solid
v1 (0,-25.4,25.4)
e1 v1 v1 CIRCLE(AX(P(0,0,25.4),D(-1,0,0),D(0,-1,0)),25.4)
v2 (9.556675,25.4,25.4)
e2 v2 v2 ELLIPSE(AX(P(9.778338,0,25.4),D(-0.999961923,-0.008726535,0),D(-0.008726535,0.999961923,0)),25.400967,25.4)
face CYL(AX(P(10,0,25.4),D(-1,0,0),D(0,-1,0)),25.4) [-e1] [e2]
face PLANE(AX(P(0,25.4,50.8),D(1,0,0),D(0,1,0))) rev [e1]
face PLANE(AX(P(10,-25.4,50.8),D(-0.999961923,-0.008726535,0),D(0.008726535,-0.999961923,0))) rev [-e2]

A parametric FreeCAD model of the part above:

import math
import FreeCAD as App
import Part
import Sketcher

V = App.Vector
Q = App.Units.Quantity

doc = App.newDocument("Part")
body = doc.addObject("PartDesign::Body", "Body")

# Sketch on XY plane
sketch1 = body.newObject("Sketcher::SketchObject", "Sketch")
sketch1.AttachmentSupport = (doc.getObject("XY_Plane"), [""])
sketch1.MapMode = "FlatFace"
sketch1.addGeometry(Part.LineSegment(V(0, 25, 0), V(0, -25, 0)), False)
sketch1.addGeometry(Part.LineSegment(V(0, -25, 0), V(10, -25, 0)), False)
sketch1.addGeometry(Part.LineSegment(V(10, -25, 0), V(10, 25, 0)), False)
sketch1.addGeometry(Part.LineSegment(V(10, 25, 0), V(0, 25, 0)), False)
sketch1.addConstraint(Sketcher.Constraint("Coincident", 0, 2, 1, 1))
sketch1.addConstraint(Sketcher.Constraint("Coincident", 1, 2, 2, 1))
sketch1.addConstraint(Sketcher.Constraint("Coincident", 2, 2, 3, 1))
sketch1.addConstraint(Sketcher.Constraint("Coincident", 3, 2, 0, 1))
sketch1.addConstraint(Sketcher.Constraint("Vertical", 0))
sketch1.addConstraint(Sketcher.Constraint("Horizontal", 1))
sketch1.addConstraint(Sketcher.Constraint("Horizontal", 3))
sketch1.addConstraint(Sketcher.Constraint("Symmetric", 0, 2, 3, 2, -1, 1))
sketch1.addConstraint(Sketcher.Constraint("DistanceY", 0, 2, 0, 1, Q("2 in")))
sketch1.addConstraint(Sketcher.Constraint("Angle", 2, Q("90.5 deg")))
sketch1.addConstraint(Sketcher.Constraint("DistanceX", 1, 1, 1, 2, Q("10 mm")))
pad1 = body.newObject("PartDesign::Pad", "Pad")
pad1.Profile = sketch1
pad1.Length = Q("2 in")

# Sketch on YZ plane
sketch2 = body.newObject("Sketcher::SketchObject", "Sketch001")
sketch2.AttachmentSupport = (doc.getObject("YZ_Plane"), [""])
sketch2.MapMode = "FlatFace"
sketch2.addGeometry(Part.ArcOfCircle(Part.Circle(V(0, 25, 0), V(0, 0, 1), 25), math.radians(180), math.radians(270)), False)
sketch2.addGeometry(Part.LineSegment(V(0, 0, 0), V(-25, 0, 0)), False)
sketch2.addGeometry(Part.LineSegment(V(-25, 0, 0), V(-25, 25, 0)), False)
sketch2.addGeometry(Part.ArcOfCircle(Part.Circle(V(0, 25, 0), V(0, 0, 1), 25), math.radians(90), math.radians(180)), False)
sketch2.addGeometry(Part.LineSegment(V(-25, 25, 0), V(-25, 51, 0)), False)
sketch2.addGeometry(Part.LineSegment(V(-25, 51, 0), V(0, 51, 0)), False)
sketch2.addGeometry(Part.LineSegment(V(25, 51, 0), V(25, 25, 0)), False)
sketch2.addGeometry(Part.ArcOfCircle(Part.Circle(V(0, 25, 0), V(0, 0, 1), 25), math.radians(0), math.radians(90)), False)
sketch2.addGeometry(Part.LineSegment(V(0, 51, 0), V(25, 51, 0)), False)
sketch2.addGeometry(Part.LineSegment(V(25, 25, 0), V(25, 0, 0)), False)
sketch2.addGeometry(Part.LineSegment(V(25, 0, 0), V(0, 0, 0)), False)
sketch2.addGeometry(Part.ArcOfCircle(Part.Circle(V(0, 25, 0), V(0, 0, 1), 25), math.radians(-90), math.radians(0)), False)
sketch2.addConstraint(Sketcher.Constraint("Tangent", 0, 2, 1, 1))
sketch2.addConstraint(Sketcher.Constraint("Coincident", 1, 2, 2, 1))
sketch2.addConstraint(Sketcher.Constraint("Tangent", 2, 2, 0, 1))
sketch2.addConstraint(Sketcher.Constraint("Tangent", 3, 2, 4, 1))
sketch2.addConstraint(Sketcher.Constraint("Coincident", 4, 2, 5, 1))
sketch2.addConstraint(Sketcher.Constraint("Tangent", 5, 2, 3, 1))
sketch2.addConstraint(Sketcher.Constraint("Tangent", 6, 2, 7, 1))
sketch2.addConstraint(Sketcher.Constraint("Tangent", 7, 2, 8, 1))
sketch2.addConstraint(Sketcher.Constraint("Coincident", 8, 2, 6, 1))
sketch2.addConstraint(Sketcher.Constraint("Coincident", 9, 2, 10, 1))
sketch2.addConstraint(Sketcher.Constraint("Tangent", 10, 2, 11, 1))
sketch2.addConstraint(Sketcher.Constraint("Tangent", 11, 2, 9, 1))
sketch2.addConstraint(Sketcher.Constraint("Horizontal", 1))
sketch2.addConstraint(Sketcher.Constraint("Vertical", 2))
sketch2.addConstraint(Sketcher.Constraint("Vertical", 4))
sketch2.addConstraint(Sketcher.Constraint("Horizontal", 5))
sketch2.addConstraint(Sketcher.Constraint("Vertical", 6))
sketch2.addConstraint(Sketcher.Constraint("Horizontal", 8))
sketch2.addConstraint(Sketcher.Constraint("Vertical", 9))
sketch2.addConstraint(Sketcher.Constraint("Horizontal", 10))
sketch2.addConstraint(Sketcher.Constraint("Coincident", 0, 2, -1, 1))
sketch2.addConstraint(Sketcher.Constraint("Coincident", 10, 2, -1, 1))
sketch2.addConstraint(Sketcher.Constraint("Coincident", 3, 3, 0, 3))
sketch2.addConstraint(Sketcher.Constraint("Coincident", 7, 3, 0, 3))
sketch2.addConstraint(Sketcher.Constraint("Coincident", 11, 2, 6, 2))
sketch2.addConstraint(Sketcher.Constraint("Equal", 0, 3))
sketch2.addConstraint(Sketcher.Constraint("Radius", 0, Q("1 in")))
pocket1 = body.newObject("PartDesign::Pocket", "Pocket")
pocket1.Profile = sketch2
pocket1.Length = 10
pocket1.Reversed = True

doc.recompute()
